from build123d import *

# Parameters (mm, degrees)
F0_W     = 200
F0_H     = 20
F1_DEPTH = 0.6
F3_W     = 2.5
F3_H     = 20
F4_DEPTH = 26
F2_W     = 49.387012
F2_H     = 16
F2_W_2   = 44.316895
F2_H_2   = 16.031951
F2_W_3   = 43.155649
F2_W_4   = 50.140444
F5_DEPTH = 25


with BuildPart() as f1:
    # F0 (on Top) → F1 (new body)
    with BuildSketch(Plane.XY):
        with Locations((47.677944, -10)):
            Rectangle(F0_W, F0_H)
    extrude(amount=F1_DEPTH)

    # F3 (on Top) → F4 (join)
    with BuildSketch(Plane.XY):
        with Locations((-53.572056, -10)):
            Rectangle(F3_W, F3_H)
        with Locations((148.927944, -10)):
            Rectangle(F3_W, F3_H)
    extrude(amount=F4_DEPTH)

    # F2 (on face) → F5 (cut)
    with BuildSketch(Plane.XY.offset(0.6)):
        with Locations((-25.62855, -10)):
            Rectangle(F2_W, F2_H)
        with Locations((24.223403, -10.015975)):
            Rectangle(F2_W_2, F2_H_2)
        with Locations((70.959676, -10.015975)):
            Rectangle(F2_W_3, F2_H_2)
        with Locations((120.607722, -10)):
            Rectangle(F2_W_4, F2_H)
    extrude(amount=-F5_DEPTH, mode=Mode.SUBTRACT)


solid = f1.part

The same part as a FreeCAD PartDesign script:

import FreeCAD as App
import Part
import Sketcher

doc = App.newDocument("Part")
body = doc.addObject("PartDesign::Body", "Body")

# Sketch on XY plane
sketch1 = doc.addObject("Sketcher::SketchObject", "Sketch")
body.addObject(sketch1)
sketch1.AttachmentSupport = (doc.XY_Plane, [""])
sketch1.MapMode = "FlatFace"
sketch1.addGeometry([
    Part.LineSegment(App.Vector(-52, 0, 0), App.Vector(-52, -20, 0)),
    Part.LineSegment(App.Vector(-52, -20, 0), App.Vector(148, -20, 0)),
    Part.LineSegment(App.Vector(148, -20, 0), App.Vector(148, 0, 0)),
    Part.LineSegment(App.Vector(148, 0, 0), App.Vector(-52, 0, 0)),
], False)
sketch1.addConstraint([
    Sketcher.Constraint("Coincident", 0, 2, 1, 1),
    Sketcher.Constraint("Coincident", 1, 2, 2, 1),
    Sketcher.Constraint("Coincident", 2, 2, 3, 1),
    Sketcher.Constraint("Coincident", 3, 2, 0, 1),
    Sketcher.Constraint("Vertical", 0),
    Sketcher.Constraint("Horizontal", 1),
    Sketcher.Constraint("Vertical", 2),
    Sketcher.Constraint("Horizontal", 3),
    Sketcher.Constraint("PointOnObject", 2, 2, -1),
    Sketcher.Constraint("DistanceX", 1, 1, 1, 2, 200.0),
    Sketcher.Constraint("DistanceY", 0, 2, 0, 1, 20.0),
    Sketcher.Constraint("DistanceX", 0, 2, -1, 1, 52.322056),
])
pad1 = doc.addObject("PartDesign::Pad", "Pad")
body.addObject(pad1)
pad1.Profile = sketch1
pad1.Length = 0.6

# Sketch on XY plane
sketch2 = doc.addObject("Sketcher::SketchObject", "Sketch001")
body.addObject(sketch2)
sketch2.AttachmentSupport = (doc.XY_Plane, [""])
sketch2.MapMode = "FlatFace"
sketch2.addGeometry([
    Part.LineSegment(App.Vector(-54.8, 0, 0), App.Vector(-54.8, -20, 0)),  # 0
    Part.LineSegment(App.Vector(-54.8, -20, 0), App.Vector(-52.3, -20, 0)),  # 1
    Part.LineSegment(App.Vector(-52.3, -20, 0), App.Vector(-52.3, 0, 0)),  # 2
    Part.LineSegment(App.Vector(-52.3, 0, 0), App.Vector(-54.8, 0, 0)),  # 3
    Part.LineSegment(App.Vector(147.7, 0, 0), App.Vector(147.7, -20, 0)),  # 4
    Part.LineSegment(App.Vector(147.7, -20, 0), App.Vector(150.2, -20, 0)),  # 5
    Part.LineSegment(App.Vector(150.2, -20, 0), App.Vector(150.2, 0, 0)),  # 6
    Part.LineSegment(App.Vector(150.2, 0, 0), App.Vector(147.7, 0, 0)),  # 7
], False)
sketch2.addConstraint([
    Sketcher.Constraint("Coincident", 0, 2, 1, 1),
    Sketcher.Constraint("Coincident", 1, 2, 2, 1),
    Sketcher.Constraint("Coincident", 2, 2, 3, 1),
    Sketcher.Constraint("Coincident", 3, 2, 0, 1),
    Sketcher.Constraint("Coincident", 4, 2, 5, 1),
    Sketcher.Constraint("Coincident", 5, 2, 6, 1),
    Sketcher.Constraint("Coincident", 6, 2, 7, 1),
    Sketcher.Constraint("Coincident", 7, 2, 4, 1),
    Sketcher.Constraint("Vertical", 0),
    Sketcher.Constraint("Horizontal", 1),
    Sketcher.Constraint("Vertical", 2),
    Sketcher.Constraint("Horizontal", 3),
    Sketcher.Constraint("Vertical", 4),
    Sketcher.Constraint("Horizontal", 5),
    Sketcher.Constraint("Vertical", 6),
    Sketcher.Constraint("Horizontal", 7),
    Sketcher.Constraint("PointOnObject", 2, 2, -1),
    Sketcher.Constraint("PointOnObject", 6, 2, -1),
    Sketcher.Constraint("Horizontal", 1, 2, 4, 2),
    Sketcher.Constraint("Equal", 3, 5),
    Sketcher.Constraint("DistanceY", 0, 2, 0, 1, 20.0),
    Sketcher.Constraint("DistanceX", 1, 1, 1, 2, 2.5),
    Sketcher.Constraint("DistanceX", 1, 2, 4, 2, 200.0),
    Sketcher.Constraint("DistanceX", 0, 2, -1, 1, 54.822056),
])
pad2 = doc.addObject("PartDesign::Pad", "Pad001")
body.addObject(pad2)
pad2.Profile = sketch2
pad2.Length = 26

# Sketch on XY plane
sketch3 = doc.addObject("Sketcher::SketchObject", "Sketch002")
body.addObject(sketch3)
sketch3.AttachmentSupport = (doc.XY_Plane, [""])
sketch3.MapMode = "FlatFace"
sketch3.AttachmentOffset = App.Placement(App.Vector(0, 0, 0.6), App.Rotation())
sketch3.addGeometry([
    Part.LineSegment(App.Vector(-50, -2, 0), App.Vector(-50, -18, 0)),  # 0
    Part.LineSegment(App.Vector(-50, -18, 0), App.Vector(-1, -18, 0)),  # 1
    Part.LineSegment(App.Vector(-1, -18, 0), App.Vector(-1, -2, 0)),  # 2
    Part.LineSegment(App.Vector(-1, -2, 0), App.Vector(-50, -2, 0)),  # 3
    Part.LineSegment(App.Vector(2, -2, 0), App.Vector(2, -18, 0)),  # 4
    Part.LineSegment(App.Vector(2, -18, 0), App.Vector(46, -18, 0)),  # 5
    Part.LineSegment(App.Vector(46, -18, 0), App.Vector(46, -2, 0)),  # 6
    Part.LineSegment(App.Vector(46, -2, 0), App.Vector(2, -2, 0)),  # 7
    Part.LineSegment(App.Vector(49, -2, 0), App.Vector(49, -18, 0)),  # 8
    Part.LineSegment(App.Vector(49, -18, 0), App.Vector(93, -18, 0)),  # 9
    Part.LineSegment(App.Vector(93, -18, 0), App.Vector(93, -2, 0)),  # 10
    Part.LineSegment(App.Vector(93, -2, 0), App.Vector(49, -2, 0)),  # 11
    Part.LineSegment(App.Vector(96, -2, 0), App.Vector(96, -18, 0)),  # 12
    Part.LineSegment(App.Vector(96, -18, 0), App.Vector(146, -18, 0)),  # 13
    Part.LineSegment(App.Vector(146, -18, 0), App.Vector(146, -2, 0)),  # 14
    Part.LineSegment(App.Vector(146, -2, 0), App.Vector(96, -2, 0)),  # 15
], False)
sketch3.addConstraint([
    Sketcher.Constraint("Coincident", 0, 2, 1, 1),
    Sketcher.Constraint("Coincident", 1, 2, 2, 1),
    Sketcher.Constraint("Coincident", 2, 2, 3, 1),
    Sketcher.Constraint("Coincident", 3, 2, 0, 1),
    Sketcher.Constraint("Coincident", 4, 2, 5, 1),
    Sketcher.Constraint("Coincident", 5, 2, 6, 1),
    Sketcher.Constraint("Coincident", 6, 2, 7, 1),
    Sketcher.Constraint("Coincident", 7, 2, 4, 1),
    Sketcher.Constraint("Coincident", 8, 2, 9, 1),
    Sketcher.Constraint("Coincident", 9, 2, 10, 1),
    Sketcher.Constraint("Coincident", 10, 2, 11, 1),
    Sketcher.Constraint("Coincident", 11, 2, 8, 1),
    Sketcher.Constraint("Coincident", 12, 2, 13, 1),
    Sketcher.Constraint("Coincident", 13, 2, 14, 1),
    Sketcher.Constraint("Coincident", 14, 2, 15, 1),
    Sketcher.Constraint("Coincident", 15, 2, 12, 1),
    Sketcher.Constraint("Vertical", 0),
    Sketcher.Constraint("Horizontal", 1),
    Sketcher.Constraint("Vertical", 2),
    Sketcher.Constraint("Horizontal", 3),
    Sketcher.Constraint("Vertical", 4),
    Sketcher.Constraint("Horizontal", 5),
    Sketcher.Constraint("Vertical", 6),
    Sketcher.Constraint("Horizontal", 7),
    Sketcher.Constraint("Vertical", 8),
    Sketcher.Constraint("Horizontal", 9),
    Sketcher.Constraint("Vertical", 10),
    Sketcher.Constraint("Horizontal", 11),
    Sketcher.Constraint("Vertical", 12),
    Sketcher.Constraint("Horizontal", 13),
    Sketcher.Constraint("Vertical", 14),
    Sketcher.Constraint("Horizontal", 15),
    Sketcher.Constraint("Horizontal", 3, 2, 6, 2),
    Sketcher.Constraint("Horizontal", 5, 2, 8, 2),
    Sketcher.Constraint("Horizontal", 7, 2, 10, 2),
    Sketcher.Constraint("Horizontal", 1, 2, 12, 2),
    Sketcher.Constraint("Horizontal", 11, 2, 14, 2),
    Sketcher.Constraint("DistanceY", 0, 2, 0, 1, 16.0),
    Sketcher.Constraint("DistanceY", 0, 2, -1, 1, 18.0),
    Sketcher.Constraint("DistanceX", 1, 2, 4, 2, 2.999999),
    Sketcher.Constraint("DistanceX", 5, 2, 8, 2, 3.000001),
    Sketcher.Constraint("DistanceX", 9, 2, 12, 2, 3.0),
    Sketcher.Constraint("DistanceX", 9, 1, 9, 2, 43.155649),
    Sketcher.Constraint("DistanceY", 4, 2, 4, 1, 16.031951),
    Sketcher.Constraint("DistanceX", -1, 1, 9, 2, 92.5375),
    Sketcher.Constraint("DistanceX", 1, 1, 1, 2, 49.387012),
    Sketcher.Constraint("DistanceX", 5, 1, 5, 2, 44.316895),
    Sketcher.Constraint("DistanceX", 13, 1, 13, 2, 50.140444),
])
pocket1 = doc.addObject("PartDesign::Pocket", "Pocket")
body.addObject(pocket1)
pocket1.Profile = sketch3
pocket1.Length = 25

doc.recompute()
